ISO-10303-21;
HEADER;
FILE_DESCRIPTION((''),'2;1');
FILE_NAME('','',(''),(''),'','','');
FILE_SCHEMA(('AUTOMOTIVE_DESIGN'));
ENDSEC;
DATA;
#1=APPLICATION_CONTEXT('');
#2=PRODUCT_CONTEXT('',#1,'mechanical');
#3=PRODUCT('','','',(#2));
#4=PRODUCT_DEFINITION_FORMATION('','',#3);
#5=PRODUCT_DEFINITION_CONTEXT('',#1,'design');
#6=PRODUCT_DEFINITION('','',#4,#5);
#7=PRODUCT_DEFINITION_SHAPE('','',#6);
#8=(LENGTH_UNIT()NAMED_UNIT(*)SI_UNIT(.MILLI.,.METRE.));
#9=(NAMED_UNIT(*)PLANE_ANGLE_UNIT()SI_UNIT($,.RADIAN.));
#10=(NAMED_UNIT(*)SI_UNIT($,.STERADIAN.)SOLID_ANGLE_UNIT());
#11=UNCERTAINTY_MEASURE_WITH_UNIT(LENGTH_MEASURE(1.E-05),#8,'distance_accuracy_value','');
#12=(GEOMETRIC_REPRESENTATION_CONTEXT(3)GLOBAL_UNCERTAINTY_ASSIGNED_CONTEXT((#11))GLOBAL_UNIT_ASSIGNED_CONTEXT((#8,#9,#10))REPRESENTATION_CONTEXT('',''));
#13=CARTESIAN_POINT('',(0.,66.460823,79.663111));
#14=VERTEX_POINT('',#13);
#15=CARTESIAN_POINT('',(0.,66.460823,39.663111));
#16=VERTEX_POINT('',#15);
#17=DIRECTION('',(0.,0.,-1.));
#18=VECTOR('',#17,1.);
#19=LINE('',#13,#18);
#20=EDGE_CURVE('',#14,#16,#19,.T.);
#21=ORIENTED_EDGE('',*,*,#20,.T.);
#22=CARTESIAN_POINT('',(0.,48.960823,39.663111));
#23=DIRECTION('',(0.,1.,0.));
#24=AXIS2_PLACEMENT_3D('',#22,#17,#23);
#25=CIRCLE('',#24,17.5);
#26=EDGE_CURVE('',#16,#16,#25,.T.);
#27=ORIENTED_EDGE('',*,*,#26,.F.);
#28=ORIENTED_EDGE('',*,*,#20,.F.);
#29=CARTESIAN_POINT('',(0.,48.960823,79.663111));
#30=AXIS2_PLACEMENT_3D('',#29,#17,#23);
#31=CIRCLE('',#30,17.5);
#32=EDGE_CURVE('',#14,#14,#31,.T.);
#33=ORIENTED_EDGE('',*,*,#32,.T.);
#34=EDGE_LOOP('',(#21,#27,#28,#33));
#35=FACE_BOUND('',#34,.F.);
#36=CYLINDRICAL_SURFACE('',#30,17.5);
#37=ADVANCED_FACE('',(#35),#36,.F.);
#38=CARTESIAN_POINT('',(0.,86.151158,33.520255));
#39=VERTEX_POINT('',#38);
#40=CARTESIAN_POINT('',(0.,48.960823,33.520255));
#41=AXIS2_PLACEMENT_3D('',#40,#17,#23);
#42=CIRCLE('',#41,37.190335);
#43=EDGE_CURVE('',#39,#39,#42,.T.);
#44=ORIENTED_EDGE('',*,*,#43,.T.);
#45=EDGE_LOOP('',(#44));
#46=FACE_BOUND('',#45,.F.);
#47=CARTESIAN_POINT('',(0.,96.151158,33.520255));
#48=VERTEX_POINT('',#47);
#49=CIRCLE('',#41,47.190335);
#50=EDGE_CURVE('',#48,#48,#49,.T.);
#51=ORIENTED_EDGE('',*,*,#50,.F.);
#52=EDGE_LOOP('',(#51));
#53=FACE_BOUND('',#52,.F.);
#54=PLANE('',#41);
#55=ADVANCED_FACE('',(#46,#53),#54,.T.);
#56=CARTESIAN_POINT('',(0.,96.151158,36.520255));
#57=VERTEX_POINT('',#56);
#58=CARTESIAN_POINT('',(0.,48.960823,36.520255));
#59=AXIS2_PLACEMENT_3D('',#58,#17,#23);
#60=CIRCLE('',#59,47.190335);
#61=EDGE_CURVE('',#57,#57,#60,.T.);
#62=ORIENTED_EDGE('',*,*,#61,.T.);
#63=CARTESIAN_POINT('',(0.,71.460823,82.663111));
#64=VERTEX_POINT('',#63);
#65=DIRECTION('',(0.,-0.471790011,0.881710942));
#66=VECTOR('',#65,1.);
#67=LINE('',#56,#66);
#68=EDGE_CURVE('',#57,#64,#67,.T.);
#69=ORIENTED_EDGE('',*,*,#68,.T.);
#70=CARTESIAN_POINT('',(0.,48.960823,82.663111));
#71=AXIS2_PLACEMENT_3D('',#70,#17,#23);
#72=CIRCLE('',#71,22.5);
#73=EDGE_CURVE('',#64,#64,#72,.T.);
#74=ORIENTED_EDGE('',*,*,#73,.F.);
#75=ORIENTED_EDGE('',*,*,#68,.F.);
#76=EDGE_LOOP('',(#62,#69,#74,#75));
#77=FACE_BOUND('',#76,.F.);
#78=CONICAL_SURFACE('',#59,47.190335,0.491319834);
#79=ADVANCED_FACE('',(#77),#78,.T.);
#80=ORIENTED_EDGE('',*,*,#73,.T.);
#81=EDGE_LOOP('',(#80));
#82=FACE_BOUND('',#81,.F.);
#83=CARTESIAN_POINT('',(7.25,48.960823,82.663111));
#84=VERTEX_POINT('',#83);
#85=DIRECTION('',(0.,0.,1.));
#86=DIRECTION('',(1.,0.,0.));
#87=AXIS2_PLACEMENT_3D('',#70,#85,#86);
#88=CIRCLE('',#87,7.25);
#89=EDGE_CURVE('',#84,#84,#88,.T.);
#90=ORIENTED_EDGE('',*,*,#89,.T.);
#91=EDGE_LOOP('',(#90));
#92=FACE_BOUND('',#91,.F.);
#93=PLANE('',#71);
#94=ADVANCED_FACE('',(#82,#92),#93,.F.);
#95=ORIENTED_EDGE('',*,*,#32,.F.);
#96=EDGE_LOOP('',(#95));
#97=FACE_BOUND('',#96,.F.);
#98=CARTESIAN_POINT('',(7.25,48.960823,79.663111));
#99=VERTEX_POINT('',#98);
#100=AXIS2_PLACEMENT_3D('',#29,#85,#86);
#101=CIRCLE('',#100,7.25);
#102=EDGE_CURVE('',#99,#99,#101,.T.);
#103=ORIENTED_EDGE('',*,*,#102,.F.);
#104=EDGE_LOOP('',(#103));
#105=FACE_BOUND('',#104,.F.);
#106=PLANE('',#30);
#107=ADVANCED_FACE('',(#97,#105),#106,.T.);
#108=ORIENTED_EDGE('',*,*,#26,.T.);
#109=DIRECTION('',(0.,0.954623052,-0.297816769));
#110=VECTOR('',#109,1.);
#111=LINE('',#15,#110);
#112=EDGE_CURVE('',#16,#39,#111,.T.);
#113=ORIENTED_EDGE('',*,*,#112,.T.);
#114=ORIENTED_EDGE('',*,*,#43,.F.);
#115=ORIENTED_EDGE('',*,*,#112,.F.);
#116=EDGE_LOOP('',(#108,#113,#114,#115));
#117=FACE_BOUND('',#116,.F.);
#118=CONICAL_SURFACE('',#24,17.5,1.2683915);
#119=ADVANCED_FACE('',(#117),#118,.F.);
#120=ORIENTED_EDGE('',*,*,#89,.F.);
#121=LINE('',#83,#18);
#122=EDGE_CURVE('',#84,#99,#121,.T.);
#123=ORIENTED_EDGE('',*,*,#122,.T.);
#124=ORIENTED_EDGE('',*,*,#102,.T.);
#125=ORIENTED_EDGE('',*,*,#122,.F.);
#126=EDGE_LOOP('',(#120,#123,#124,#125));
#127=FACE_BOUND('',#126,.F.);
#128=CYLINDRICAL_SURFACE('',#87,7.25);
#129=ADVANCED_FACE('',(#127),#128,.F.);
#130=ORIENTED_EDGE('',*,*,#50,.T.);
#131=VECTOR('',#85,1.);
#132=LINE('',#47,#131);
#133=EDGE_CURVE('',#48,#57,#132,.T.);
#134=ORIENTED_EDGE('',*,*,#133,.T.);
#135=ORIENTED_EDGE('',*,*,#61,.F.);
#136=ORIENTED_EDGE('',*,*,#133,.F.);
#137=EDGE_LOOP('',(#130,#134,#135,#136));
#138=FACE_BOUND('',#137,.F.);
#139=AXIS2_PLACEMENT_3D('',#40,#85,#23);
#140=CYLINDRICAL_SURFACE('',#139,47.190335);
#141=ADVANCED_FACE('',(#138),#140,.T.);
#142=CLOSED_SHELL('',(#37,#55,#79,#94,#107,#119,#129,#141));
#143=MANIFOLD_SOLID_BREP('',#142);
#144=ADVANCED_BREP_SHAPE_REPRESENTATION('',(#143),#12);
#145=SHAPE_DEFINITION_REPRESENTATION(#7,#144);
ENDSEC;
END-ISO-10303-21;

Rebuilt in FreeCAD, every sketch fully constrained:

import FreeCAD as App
import Part
import Sketcher


def add_polygon(sketch, points):
    """Adds a closed chain of lines whose ends are joined by coincident constraints."""
    first, n = sketch.GeometryCount, len(points)
    for a, b in zip(points, points[1:] + points[:1]):
        sketch.addGeometry(Part.LineSegment(App.Vector(*a, 0), App.Vector(*b, 0)), False)
    for i in range(n):
        sketch.addConstraint(Sketcher.Constraint("Coincident", first + i, 2, first + (i + 1) % n, 1))

doc = App.newDocument("Part")
params = doc.addObject("Spreadsheet::Sheet", "Params")
for row, (alias, value) in enumerate([
    ("sketch1_width", "10 mm"),
    ("sketch1_height", "3 mm"),
    ("sketch1_height2", "40 mm"),
    ("sketch1_width2", "22.5 mm"),
    ("sketch1_width3", "17.5 mm"),
    ("revolution_angle", "360 deg"),
    ("sketch2_diameter", "14.5 mm"),
], start=1):
    params.set(f"A{row}", alias)
    params.set(f"B{row}", "=" + value)
    params.setAlias(f"B{row}", alias)

body = doc.addObject("PartDesign::Body", "Body")

# Sketch on YZ plane
sketch1 = body.newObject("Sketcher::SketchObject", "Sketch")
sketch1.AttachmentSupport = (doc.getObject("YZ_Plane"), [""])
sketch1.MapMode = "FlatFace"
add_polygon(sketch1, [(71.5, 82.7), (49, 82.7), (49, 79.7), (66.5, 79.7), (66.5, 39.7), (86.2, 33.5), (96.2, 33.5), (96.2, 36.5)])  # lines 0-7
sketch1.addGeometry(Part.LineSegment(App.Vector(49, 82.7, 0), App.Vector(49, 33.5, 0)), True)  # axis
sketch1.addConstraint(Sketcher.Constraint("Horizontal", 0))
sketch1.addConstraint(Sketcher.Constraint("Vertical", 1))
sketch1.addConstraint(Sketcher.Constraint("Horizontal", 2))
sketch1.addConstraint(Sketcher.Constraint("Vertical", 3))
sketch1.addConstraint(Sketcher.Constraint("Horizontal", 5))
sketch1.addConstraint(Sketcher.Constraint("Vertical", 6))
sketch1.addConstraint(Sketcher.Constraint("Vertical", 8))
sketch1.addConstraint(Sketcher.Constraint("Coincident", 8, 1, 0, 2))
sketch1.addConstraint(Sketcher.Constraint("Horizontal", 5, 2, 8, 2))
sketch1.addConstraint(Sketcher.Constraint("Equal", 1, 6))
sketch1.addConstraint(Sketcher.Constraint("DistanceX", 5, 1, 5, 2, 10.0))
sketch1.addConstraint(Sketcher.Constraint("DistanceY", 1, 2, 1, 1, 3.0))
sketch1.addConstraint(Sketcher.Constraint("DistanceY", 3, 2, 3, 1, 40.0))
sketch1.addConstraint(Sketcher.Constraint("DistanceX", 0, 2, 0, 1, 22.5))
sketch1.addConstraint(Sketcher.Constraint("DistanceX", 2, 1, 2, 2, 17.5))
sketch1.addConstraint(Sketcher.Constraint("DistanceY", 8, 2, 8, 1, 49.142856))
sketch1.addConstraint(Sketcher.Constraint("DistanceY", -1, 1, 0, 2, 82.663111))
sketch1.addConstraint(Sketcher.Constraint("Distance", 4, 20.626293))
sketch1.addConstraint(Sketcher.Constraint("DistanceX", -1, 1, 0, 2, 48.960823))
sketch1.setExpression("Constraints[18]", "Params.sketch1_width")
sketch1.setExpression("Constraints[19]", "Params.sketch1_height")
sketch1.setExpression("Constraints[20]", "Params.sketch1_height2")
sketch1.setExpression("Constraints[21]", "Params.sketch1_width2")
sketch1.setExpression("Constraints[22]", "Params.sketch1_width3")
revolution = body.newObject("PartDesign::Revolution", "Revolution")
revolution.Profile = sketch1
revolution.ReferenceAxis = (sketch1, ["Axis0"])
revolution.setExpression("Angle", "Params.revolution_angle")

# Sketch on XY plane
sketch2 = body.newObject("Sketcher::SketchObject", "Sketch001")
sketch2.AttachmentSupport = (doc.getObject("XY_Plane"), [""])
sketch2.MapMode = "FlatFace"
sketch2.AttachmentOffset = App.Placement(App.Vector(0, 0, 82.663111), App.Rotation())
sketch2.addGeometry(Part.Circle(App.Vector(0, 49, 0), App.Vector(0, 0, 1), 7), False)
sketch2.addConstraint(Sketcher.Constraint("PointOnObject", 0, 3, -2))
sketch2.addConstraint(Sketcher.Constraint("Diameter", 0, 14.5))
sketch2.addConstraint(Sketcher.Constraint("DistanceY", -1, 1, 0, 3, 48.960823))
sketch2.setExpression("Constraints[1]", "Params.sketch2_diameter")
pocket1 = body.newObject("PartDesign::Pocket", "Pocket")
pocket1.Profile = sketch2
pocket1.Type = "ThroughAll"

doc.recompute()
